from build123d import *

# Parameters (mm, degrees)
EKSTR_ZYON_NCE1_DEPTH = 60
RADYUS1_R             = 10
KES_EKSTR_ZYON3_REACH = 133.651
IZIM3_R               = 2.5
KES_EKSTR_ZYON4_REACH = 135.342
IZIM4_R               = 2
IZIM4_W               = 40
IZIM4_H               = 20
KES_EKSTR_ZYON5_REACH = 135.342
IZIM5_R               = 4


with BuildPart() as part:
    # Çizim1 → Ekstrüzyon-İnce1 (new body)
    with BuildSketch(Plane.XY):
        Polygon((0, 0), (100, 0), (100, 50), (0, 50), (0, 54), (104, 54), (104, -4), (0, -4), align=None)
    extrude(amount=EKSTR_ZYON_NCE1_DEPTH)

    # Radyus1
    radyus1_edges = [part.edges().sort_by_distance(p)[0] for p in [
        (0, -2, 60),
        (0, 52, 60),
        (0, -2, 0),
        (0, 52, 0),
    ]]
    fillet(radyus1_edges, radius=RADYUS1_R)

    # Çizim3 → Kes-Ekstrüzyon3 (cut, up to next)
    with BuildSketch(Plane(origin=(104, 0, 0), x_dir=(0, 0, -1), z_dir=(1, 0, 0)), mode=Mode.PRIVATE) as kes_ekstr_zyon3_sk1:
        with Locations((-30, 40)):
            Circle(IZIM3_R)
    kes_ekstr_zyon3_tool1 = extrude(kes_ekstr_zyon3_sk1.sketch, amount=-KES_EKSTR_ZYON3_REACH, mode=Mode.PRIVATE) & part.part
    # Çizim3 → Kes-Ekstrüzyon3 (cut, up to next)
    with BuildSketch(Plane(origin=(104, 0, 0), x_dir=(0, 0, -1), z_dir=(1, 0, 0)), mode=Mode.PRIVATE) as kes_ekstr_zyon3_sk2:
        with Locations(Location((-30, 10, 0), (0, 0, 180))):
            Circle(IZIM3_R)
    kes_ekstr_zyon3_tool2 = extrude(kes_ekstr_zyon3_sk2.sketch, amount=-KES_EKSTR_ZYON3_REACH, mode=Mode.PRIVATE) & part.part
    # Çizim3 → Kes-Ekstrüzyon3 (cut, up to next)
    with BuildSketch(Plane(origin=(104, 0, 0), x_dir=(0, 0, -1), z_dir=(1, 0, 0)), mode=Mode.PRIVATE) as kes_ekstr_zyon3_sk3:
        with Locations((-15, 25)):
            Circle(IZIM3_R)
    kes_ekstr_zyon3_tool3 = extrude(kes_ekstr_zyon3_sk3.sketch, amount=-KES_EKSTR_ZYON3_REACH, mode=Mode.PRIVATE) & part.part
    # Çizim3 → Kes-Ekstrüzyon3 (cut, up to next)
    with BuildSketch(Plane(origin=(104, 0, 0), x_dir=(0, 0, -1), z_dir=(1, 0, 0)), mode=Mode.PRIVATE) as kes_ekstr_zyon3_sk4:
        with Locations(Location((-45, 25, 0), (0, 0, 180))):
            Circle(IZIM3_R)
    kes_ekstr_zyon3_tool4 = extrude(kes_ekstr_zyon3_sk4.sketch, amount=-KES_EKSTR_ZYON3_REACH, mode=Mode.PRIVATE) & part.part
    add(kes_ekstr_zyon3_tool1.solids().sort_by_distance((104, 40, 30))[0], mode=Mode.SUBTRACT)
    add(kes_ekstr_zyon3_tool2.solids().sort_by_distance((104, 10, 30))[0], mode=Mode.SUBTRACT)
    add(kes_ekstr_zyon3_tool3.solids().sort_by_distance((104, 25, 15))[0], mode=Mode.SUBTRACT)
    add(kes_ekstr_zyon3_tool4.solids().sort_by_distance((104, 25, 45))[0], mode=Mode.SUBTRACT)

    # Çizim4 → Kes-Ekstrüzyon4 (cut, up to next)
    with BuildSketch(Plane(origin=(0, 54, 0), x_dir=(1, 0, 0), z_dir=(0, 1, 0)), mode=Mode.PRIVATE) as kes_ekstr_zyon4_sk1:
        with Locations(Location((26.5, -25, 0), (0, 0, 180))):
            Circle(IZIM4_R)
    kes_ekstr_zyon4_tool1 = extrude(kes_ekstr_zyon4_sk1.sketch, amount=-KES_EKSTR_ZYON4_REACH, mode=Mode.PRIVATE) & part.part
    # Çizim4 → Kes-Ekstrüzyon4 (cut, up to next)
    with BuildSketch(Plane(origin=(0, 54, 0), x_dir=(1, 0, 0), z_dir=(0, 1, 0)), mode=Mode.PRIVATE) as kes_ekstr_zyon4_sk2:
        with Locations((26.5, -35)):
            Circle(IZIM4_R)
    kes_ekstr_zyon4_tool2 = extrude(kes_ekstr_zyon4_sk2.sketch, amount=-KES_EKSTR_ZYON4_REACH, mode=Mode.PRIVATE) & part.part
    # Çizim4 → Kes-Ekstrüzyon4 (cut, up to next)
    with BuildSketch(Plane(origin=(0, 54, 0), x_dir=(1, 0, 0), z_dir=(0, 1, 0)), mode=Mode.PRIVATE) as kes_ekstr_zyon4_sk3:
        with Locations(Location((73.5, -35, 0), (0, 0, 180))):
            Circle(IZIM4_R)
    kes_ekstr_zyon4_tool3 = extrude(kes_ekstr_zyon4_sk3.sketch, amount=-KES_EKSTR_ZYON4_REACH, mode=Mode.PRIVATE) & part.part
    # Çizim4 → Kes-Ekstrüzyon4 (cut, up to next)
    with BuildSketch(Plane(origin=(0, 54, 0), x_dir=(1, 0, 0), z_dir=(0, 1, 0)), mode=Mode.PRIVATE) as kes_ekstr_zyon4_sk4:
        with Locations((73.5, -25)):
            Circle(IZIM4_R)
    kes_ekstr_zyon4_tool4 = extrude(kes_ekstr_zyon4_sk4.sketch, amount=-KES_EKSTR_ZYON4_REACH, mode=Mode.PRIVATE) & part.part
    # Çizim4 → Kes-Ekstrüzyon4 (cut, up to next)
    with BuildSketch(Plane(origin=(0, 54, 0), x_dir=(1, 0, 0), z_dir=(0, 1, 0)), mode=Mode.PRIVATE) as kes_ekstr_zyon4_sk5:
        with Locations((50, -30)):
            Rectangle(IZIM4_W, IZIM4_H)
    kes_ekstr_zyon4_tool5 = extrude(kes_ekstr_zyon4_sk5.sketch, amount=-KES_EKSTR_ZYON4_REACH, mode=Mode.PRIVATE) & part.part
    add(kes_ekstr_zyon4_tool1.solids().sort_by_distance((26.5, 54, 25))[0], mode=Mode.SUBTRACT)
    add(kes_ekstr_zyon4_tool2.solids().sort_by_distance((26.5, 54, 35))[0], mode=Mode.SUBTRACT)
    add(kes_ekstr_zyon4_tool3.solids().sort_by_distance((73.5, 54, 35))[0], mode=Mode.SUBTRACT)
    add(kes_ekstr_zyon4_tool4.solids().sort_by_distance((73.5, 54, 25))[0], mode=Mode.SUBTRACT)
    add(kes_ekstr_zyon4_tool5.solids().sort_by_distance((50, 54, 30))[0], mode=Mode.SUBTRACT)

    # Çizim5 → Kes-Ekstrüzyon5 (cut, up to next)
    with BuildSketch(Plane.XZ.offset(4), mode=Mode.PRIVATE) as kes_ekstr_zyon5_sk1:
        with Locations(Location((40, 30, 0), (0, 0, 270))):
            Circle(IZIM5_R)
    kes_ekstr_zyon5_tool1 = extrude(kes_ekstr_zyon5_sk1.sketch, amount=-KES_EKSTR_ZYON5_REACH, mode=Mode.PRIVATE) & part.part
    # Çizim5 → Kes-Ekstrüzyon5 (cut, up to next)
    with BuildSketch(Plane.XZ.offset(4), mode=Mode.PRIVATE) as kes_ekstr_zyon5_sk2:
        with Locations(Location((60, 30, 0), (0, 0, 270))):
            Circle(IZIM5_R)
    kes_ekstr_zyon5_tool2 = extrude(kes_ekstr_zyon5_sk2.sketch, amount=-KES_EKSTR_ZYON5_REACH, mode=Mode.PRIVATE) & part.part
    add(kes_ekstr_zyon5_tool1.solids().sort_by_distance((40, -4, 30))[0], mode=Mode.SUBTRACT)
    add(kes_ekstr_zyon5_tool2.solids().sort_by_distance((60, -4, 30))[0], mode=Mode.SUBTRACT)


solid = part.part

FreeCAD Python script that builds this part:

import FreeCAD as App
import Part
import Sketcher
from FreeCAD import Vector


def edges_at(feature, points):
    """Names of the edges that pass closest to the given points."""
    edges = feature.Shape.Edges
    near = lambda p: min(range(len(edges)), key=lambda i: edges[i].distToShape(Part.Vertex(*p))[0])
    return sorted({f"Edge{near(p) + 1}" for p in points})


def add_polygon(sketch, points):
    """Adds a closed chain of lines whose ends are joined by coincident constraints."""
    first, n = sketch.GeometryCount, len(points)
    for a, b in zip(points, points[1:] + points[:1]):
        sketch.addGeometry(Part.LineSegment(App.Vector(*a, 0), App.Vector(*b, 0)), False)
    for i in range(n):
        sketch.addConstraint(Sketcher.Constraint("Coincident", first + i, 2, first + (i + 1) % n, 1))

doc = App.newDocument("Part")
body = doc.addObject("PartDesign::Body", "Body")

# Sketch on XY plane
sketch1 = body.newObject("Sketcher::SketchObject", "Sketch")
sketch1.AttachmentSupport = (doc.getObject("XY_Plane"), [""])
sketch1.MapMode = "FlatFace"
add_polygon(sketch1, [(100, 0), (0, 0), (0, -4), (104, -4), (104, 54), (0, 54), (0, 50), (100, 50)])  # lines 0-7
sketch1.addConstraint(Sketcher.Constraint("Horizontal", 0))
sketch1.addConstraint(Sketcher.Constraint("Vertical", 1))
sketch1.addConstraint(Sketcher.Constraint("Horizontal", 2))
sketch1.addConstraint(Sketcher.Constraint("Vertical", 3))
sketch1.addConstraint(Sketcher.Constraint("Horizontal", 4))
sketch1.addConstraint(Sketcher.Constraint("Vertical", 5))
sketch1.addConstraint(Sketcher.Constraint("Horizontal", 6))
sketch1.addConstraint(Sketcher.Constraint("Vertical", 7))
sketch1.addConstraint(Sketcher.Constraint("Coincident", 0, 2, -1, 1))
sketch1.addConstraint(Sketcher.Constraint("PointOnObject", 4, 2, -2))
sketch1.addConstraint(Sketcher.Constraint("Equal", 1, 5))
sketch1.addConstraint(Sketcher.Constraint("DistanceX", 0, 2, 0, 1, 100.0))
sketch1.addConstraint(Sketcher.Constraint("DistanceX", 2, 1, 2, 2, 104.0))
sketch1.addConstraint(Sketcher.Constraint("DistanceY", 1, 2, 1, 1, 4.0))
sketch1.addConstraint(Sketcher.Constraint("DistanceY", 3, 1, 3, 2, 58.0))
pad1 = body.newObject("PartDesign::Pad", "Pad")
pad1.Profile = sketch1
pad1.Length = 60
doc.recompute()

fillet = body.newObject("PartDesign::Fillet", "Fillet")
fillet.Base = (pad1, edges_at(pad1, [
    (0, -2, 60),
    (0, 52, 60),
    (0, -2, 0),
    (0, 52, 0),
]))
fillet.Radius = 10

# Sketch on YZ plane
sketch2 = body.newObject("Sketcher::SketchObject", "Sketch001")
sketch2.AttachmentSupport = (doc.getObject("YZ_Plane"), [""])
sketch2.MapMode = "FlatFace"
sketch2.AttachmentOffset = App.Placement(Vector(0, 0, 104), App.Rotation())
sketch2.addGeometry(Part.Circle(Vector(40, 30, 0), Vector(0, 0, 1), 2.5), False)
sketch2.addConstraint(Sketcher.Constraint("Diameter", 0, 5.0))
sketch2.addConstraint(Sketcher.Constraint("DistanceX", -1, 1, 0, 3, 40.0))
sketch2.addConstraint(Sketcher.Constraint("DistanceY", -1, 1, 0, 3, 30.0))
pocket1 = body.newObject("PartDesign::Pocket", "Pocket")
pocket1.Profile = sketch2
pocket1.Type = "UpToFirst"

# Sketch on YZ plane
sketch3 = body.newObject("Sketcher::SketchObject", "Sketch002")
sketch3.AttachmentSupport = (doc.getObject("YZ_Plane"), [""])
sketch3.MapMode = "FlatFace"
sketch3.AttachmentOffset = App.Placement(Vector(0, 0, 104), App.Rotation())
sketch3.addGeometry(Part.Circle(Vector(10, 30, 0), Vector(0, 0, 1), 2.5), False)
sketch3.addConstraint(Sketcher.Constraint("Diameter", 0, 5.0))
sketch3.addConstraint(Sketcher.Constraint("DistanceX", -1, 1, 0, 3, 10.0))
sketch3.addConstraint(Sketcher.Constraint("DistanceY", -1, 1, 0, 3, 30.0))
pocket2 = body.newObject("PartDesign::Pocket", "Pocket001")
pocket2.Profile = sketch3
pocket2.Type = "UpToFirst"

# Sketch on YZ plane
sketch4 = body.newObject("Sketcher::SketchObject", "Sketch003")
sketch4.AttachmentSupport = (doc.getObject("YZ_Plane"), [""])
sketch4.MapMode = "FlatFace"
sketch4.AttachmentOffset = App.Placement(Vector(0, 0, 104), App.Rotation())
sketch4.addGeometry(Part.Circle(Vector(25, 15, 0), Vector(0, 0, 1), 2.5), False)
sketch4.addConstraint(Sketcher.Constraint("Diameter", 0, 5.0))
sketch4.addConstraint(Sketcher.Constraint("DistanceX", -1, 1, 0, 3, 25.0))
sketch4.addConstraint(Sketcher.Constraint("DistanceY", -1, 1, 0, 3, 15.0))
pocket3 = body.newObject("PartDesign::Pocket", "Pocket002")
pocket3.Profile = sketch4
pocket3.Type = "UpToFirst"

# Sketch on YZ plane
sketch5 = body.newObject("Sketcher::SketchObject", "Sketch004")
sketch5.AttachmentSupport = (doc.getObject("YZ_Plane"), [""])
sketch5.MapMode = "FlatFace"
sketch5.AttachmentOffset = App.Placement(Vector(0, 0, 104), App.Rotation())
sketch5.addGeometry(Part.Circle(Vector(25, 45, 0), Vector(0, 0, 1), 2.5), False)
sketch5.addConstraint(Sketcher.Constraint("Diameter", 0, 5.0))
sketch5.addConstraint(Sketcher.Constraint("DistanceX", -1, 1, 0, 3, 25.0))
sketch5.addConstraint(Sketcher.Constraint("DistanceY", -1, 1, 0, 3, 45.0))
pocket4 = body.newObject("PartDesign::Pocket", "Pocket003")
pocket4.Profile = sketch5
pocket4.Type = "UpToFirst"

# Sketch on XZ plane
sketch6 = body.newObject("Sketcher::SketchObject", "Sketch005")
sketch6.AttachmentSupport = (doc.getObject("XZ_Plane"), [""])
sketch6.MapMode = "FlatFace"
sketch6.AttachmentOffset = App.Placement(Vector(0, 0, -54), App.Rotation())
sketch6.addGeometry(Part.Circle(Vector(26.5, 25, 0), Vector(0, 0, 1), 2), False)
sketch6.addConstraint(Sketcher.Constraint("Diameter", 0, 4.0))
sketch6.addConstraint(Sketcher.Constraint("DistanceY", -1, 1, 0, 3, 25.0))
sketch6.addConstraint(Sketcher.Constraint("DistanceX", -1, 1, 0, 3, 26.5))
pocket5 = body.newObject("PartDesign::Pocket", "Pocket004")
pocket5.Profile = sketch6
pocket5.Type = "UpToFirst"
pocket5.Reversed = True

# Sketch on XZ plane
sketch7 = body.newObject("Sketcher::SketchObject", "Sketch006")
sketch7.AttachmentSupport = (doc.getObject("XZ_Plane"), [""])
sketch7.MapMode = "FlatFace"
sketch7.AttachmentOffset = App.Placement(Vector(0, 0, -54), App.Rotation())
sketch7.addGeometry(Part.Circle(Vector(26.5, 35, 0), Vector(0, 0, 1), 2), False)
sketch7.addConstraint(Sketcher.Constraint("Diameter", 0, 4.0))
sketch7.addConstraint(Sketcher.Constraint("DistanceY", -1, 1, 0, 3, 35.0))
sketch7.addConstraint(Sketcher.Constraint("DistanceX", -1, 1, 0, 3, 26.5))
pocket6 = body.newObject("PartDesign::Pocket", "Pocket005")
pocket6.Profile = sketch7
pocket6.Type = "UpToFirst"
pocket6.Reversed = True

# Sketch on XZ plane
sketch8 = body.newObject("Sketcher::SketchObject", "Sketch007")
sketch8.AttachmentSupport = (doc.getObject("XZ_Plane"), [""])
sketch8.MapMode = "FlatFace"
sketch8.AttachmentOffset = App.Placement(Vector(0, 0, -54), App.Rotation())
sketch8.addGeometry(Part.Circle(Vector(73.5, 35, 0), Vector(0, 0, 1), 2), False)
sketch8.addConstraint(Sketcher.Constraint("Diameter", 0, 4.0))
sketch8.addConstraint(Sketcher.Constraint("DistanceY", -1, 1, 0, 3, 35.0))
sketch8.addConstraint(Sketcher.Constraint("DistanceX", -1, 1, 0, 3, 73.5))
pocket7 = body.newObject("PartDesign::Pocket", "Pocket006")
pocket7.Profile = sketch8
pocket7.Type = "UpToFirst"
pocket7.Reversed = True

# Sketch on XZ plane
sketch9 = body.newObject("Sketcher::SketchObject", "Sketch008")
sketch9.AttachmentSupport = (doc.getObject("XZ_Plane"), [""])
sketch9.MapMode = "FlatFace"
sketch9.AttachmentOffset = App.Placement(Vector(0, 0, -54), App.Rotation())
sketch9.addGeometry(Part.Circle(Vector(73.5, 25, 0), Vector(0, 0, 1), 2), False)
sketch9.addConstraint(Sketcher.Constraint("Diameter", 0, 4.0))
sketch9.addConstraint(Sketcher.Constraint("DistanceY", -1, 1, 0, 3, 25.0))
sketch9.addConstraint(Sketcher.Constraint("DistanceX", -1, 1, 0, 3, 73.5))
pocket8 = body.newObject("PartDesign::Pocket", "Pocket007")
pocket8.Profile = sketch9
pocket8.Type = "UpToFirst"
pocket8.Reversed = True

# Sketch on XZ plane
sketch10 = body.newObject("Sketcher::SketchObject", "Sketch009")
sketch10.AttachmentSupport = (doc.getObject("XZ_Plane"), [""])
sketch10.MapMode = "FlatFace"
sketch10.AttachmentOffset = App.Placement(Vector(0, 0, -54), App.Rotation())
add_polygon(sketch10, [(30, 20), (30, 40), (70, 40), (70, 20)])  # lines 0-3
sketch10.addConstraint(Sketcher.Constraint("Vertical", 0))
sketch10.addConstraint(Sketcher.Constraint("Horizontal", 1))
sketch10.addConstraint(Sketcher.Constraint("Vertical", 2))
sketch10.addConstraint(Sketcher.Constraint("Horizontal", 3))
sketch10.addConstraint(Sketcher.Constraint("DistanceX", 1, 1, 1, 2, 40.0))
sketch10.addConstraint(Sketcher.Constraint("DistanceY", 0, 1, 0, 2, 20.0))
sketch10.addConstraint(Sketcher.Constraint("DistanceX", -1, 1, 0, 2, 30.0))
sketch10.addConstraint(Sketcher.Constraint("DistanceY", -1, 1, 0, 2, 40.0))
pocket9 = body.newObject("PartDesign::Pocket", "Pocket008")
pocket9.Profile = sketch10
pocket9.Type = "UpToFirst"
pocket9.Reversed = True

# Sketch on XZ plane
sketch11 = body.newObject("Sketcher::SketchObject", "Sketch010")
sketch11.AttachmentSupport = (doc.getObject("XZ_Plane"), [""])
sketch11.MapMode = "FlatFace"
sketch11.AttachmentOffset = App.Placement(Vector(0, 0, 4), App.Rotation())
sketch11.addGeometry(Part.Circle(Vector(40, 30, 0), Vector(0, 0, 1), 4), False)
sketch11.addConstraint(Sketcher.Constraint("Diameter", 0, 8.0))
sketch11.addConstraint(Sketcher.Constraint("DistanceX", -1, 1, 0, 3, 40.0))
sketch11.addConstraint(Sketcher.Constraint("DistanceY", -1, 1, 0, 3, 30.0))
pocket10 = body.newObject("PartDesign::Pocket", "Pocket009")
pocket10.Profile = sketch11
pocket10.Type = "UpToFirst"

# Sketch on XZ plane
sketch12 = body.newObject("Sketcher::SketchObject", "Sketch011")
sketch12.AttachmentSupport = (doc.getObject("XZ_Plane"), [""])
sketch12.MapMode = "FlatFace"
sketch12.AttachmentOffset = App.Placement(Vector(0, 0, 4), App.Rotation())
sketch12.addGeometry(Part.Circle(Vector(60, 30, 0), Vector(0, 0, 1), 4), False)
sketch12.addConstraint(Sketcher.Constraint("Diameter", 0, 8.0))
sketch12.addConstraint(Sketcher.Constraint("DistanceX", -1, 1, 0, 3, 60.0))
sketch12.addConstraint(Sketcher.Constraint("DistanceY", -1, 1, 0, 3, 30.0))
pocket11 = body.newObject("PartDesign::Pocket", "Pocket010")
pocket11.Profile = sketch12
pocket11.Type = "UpToFirst"

doc.recompute()
